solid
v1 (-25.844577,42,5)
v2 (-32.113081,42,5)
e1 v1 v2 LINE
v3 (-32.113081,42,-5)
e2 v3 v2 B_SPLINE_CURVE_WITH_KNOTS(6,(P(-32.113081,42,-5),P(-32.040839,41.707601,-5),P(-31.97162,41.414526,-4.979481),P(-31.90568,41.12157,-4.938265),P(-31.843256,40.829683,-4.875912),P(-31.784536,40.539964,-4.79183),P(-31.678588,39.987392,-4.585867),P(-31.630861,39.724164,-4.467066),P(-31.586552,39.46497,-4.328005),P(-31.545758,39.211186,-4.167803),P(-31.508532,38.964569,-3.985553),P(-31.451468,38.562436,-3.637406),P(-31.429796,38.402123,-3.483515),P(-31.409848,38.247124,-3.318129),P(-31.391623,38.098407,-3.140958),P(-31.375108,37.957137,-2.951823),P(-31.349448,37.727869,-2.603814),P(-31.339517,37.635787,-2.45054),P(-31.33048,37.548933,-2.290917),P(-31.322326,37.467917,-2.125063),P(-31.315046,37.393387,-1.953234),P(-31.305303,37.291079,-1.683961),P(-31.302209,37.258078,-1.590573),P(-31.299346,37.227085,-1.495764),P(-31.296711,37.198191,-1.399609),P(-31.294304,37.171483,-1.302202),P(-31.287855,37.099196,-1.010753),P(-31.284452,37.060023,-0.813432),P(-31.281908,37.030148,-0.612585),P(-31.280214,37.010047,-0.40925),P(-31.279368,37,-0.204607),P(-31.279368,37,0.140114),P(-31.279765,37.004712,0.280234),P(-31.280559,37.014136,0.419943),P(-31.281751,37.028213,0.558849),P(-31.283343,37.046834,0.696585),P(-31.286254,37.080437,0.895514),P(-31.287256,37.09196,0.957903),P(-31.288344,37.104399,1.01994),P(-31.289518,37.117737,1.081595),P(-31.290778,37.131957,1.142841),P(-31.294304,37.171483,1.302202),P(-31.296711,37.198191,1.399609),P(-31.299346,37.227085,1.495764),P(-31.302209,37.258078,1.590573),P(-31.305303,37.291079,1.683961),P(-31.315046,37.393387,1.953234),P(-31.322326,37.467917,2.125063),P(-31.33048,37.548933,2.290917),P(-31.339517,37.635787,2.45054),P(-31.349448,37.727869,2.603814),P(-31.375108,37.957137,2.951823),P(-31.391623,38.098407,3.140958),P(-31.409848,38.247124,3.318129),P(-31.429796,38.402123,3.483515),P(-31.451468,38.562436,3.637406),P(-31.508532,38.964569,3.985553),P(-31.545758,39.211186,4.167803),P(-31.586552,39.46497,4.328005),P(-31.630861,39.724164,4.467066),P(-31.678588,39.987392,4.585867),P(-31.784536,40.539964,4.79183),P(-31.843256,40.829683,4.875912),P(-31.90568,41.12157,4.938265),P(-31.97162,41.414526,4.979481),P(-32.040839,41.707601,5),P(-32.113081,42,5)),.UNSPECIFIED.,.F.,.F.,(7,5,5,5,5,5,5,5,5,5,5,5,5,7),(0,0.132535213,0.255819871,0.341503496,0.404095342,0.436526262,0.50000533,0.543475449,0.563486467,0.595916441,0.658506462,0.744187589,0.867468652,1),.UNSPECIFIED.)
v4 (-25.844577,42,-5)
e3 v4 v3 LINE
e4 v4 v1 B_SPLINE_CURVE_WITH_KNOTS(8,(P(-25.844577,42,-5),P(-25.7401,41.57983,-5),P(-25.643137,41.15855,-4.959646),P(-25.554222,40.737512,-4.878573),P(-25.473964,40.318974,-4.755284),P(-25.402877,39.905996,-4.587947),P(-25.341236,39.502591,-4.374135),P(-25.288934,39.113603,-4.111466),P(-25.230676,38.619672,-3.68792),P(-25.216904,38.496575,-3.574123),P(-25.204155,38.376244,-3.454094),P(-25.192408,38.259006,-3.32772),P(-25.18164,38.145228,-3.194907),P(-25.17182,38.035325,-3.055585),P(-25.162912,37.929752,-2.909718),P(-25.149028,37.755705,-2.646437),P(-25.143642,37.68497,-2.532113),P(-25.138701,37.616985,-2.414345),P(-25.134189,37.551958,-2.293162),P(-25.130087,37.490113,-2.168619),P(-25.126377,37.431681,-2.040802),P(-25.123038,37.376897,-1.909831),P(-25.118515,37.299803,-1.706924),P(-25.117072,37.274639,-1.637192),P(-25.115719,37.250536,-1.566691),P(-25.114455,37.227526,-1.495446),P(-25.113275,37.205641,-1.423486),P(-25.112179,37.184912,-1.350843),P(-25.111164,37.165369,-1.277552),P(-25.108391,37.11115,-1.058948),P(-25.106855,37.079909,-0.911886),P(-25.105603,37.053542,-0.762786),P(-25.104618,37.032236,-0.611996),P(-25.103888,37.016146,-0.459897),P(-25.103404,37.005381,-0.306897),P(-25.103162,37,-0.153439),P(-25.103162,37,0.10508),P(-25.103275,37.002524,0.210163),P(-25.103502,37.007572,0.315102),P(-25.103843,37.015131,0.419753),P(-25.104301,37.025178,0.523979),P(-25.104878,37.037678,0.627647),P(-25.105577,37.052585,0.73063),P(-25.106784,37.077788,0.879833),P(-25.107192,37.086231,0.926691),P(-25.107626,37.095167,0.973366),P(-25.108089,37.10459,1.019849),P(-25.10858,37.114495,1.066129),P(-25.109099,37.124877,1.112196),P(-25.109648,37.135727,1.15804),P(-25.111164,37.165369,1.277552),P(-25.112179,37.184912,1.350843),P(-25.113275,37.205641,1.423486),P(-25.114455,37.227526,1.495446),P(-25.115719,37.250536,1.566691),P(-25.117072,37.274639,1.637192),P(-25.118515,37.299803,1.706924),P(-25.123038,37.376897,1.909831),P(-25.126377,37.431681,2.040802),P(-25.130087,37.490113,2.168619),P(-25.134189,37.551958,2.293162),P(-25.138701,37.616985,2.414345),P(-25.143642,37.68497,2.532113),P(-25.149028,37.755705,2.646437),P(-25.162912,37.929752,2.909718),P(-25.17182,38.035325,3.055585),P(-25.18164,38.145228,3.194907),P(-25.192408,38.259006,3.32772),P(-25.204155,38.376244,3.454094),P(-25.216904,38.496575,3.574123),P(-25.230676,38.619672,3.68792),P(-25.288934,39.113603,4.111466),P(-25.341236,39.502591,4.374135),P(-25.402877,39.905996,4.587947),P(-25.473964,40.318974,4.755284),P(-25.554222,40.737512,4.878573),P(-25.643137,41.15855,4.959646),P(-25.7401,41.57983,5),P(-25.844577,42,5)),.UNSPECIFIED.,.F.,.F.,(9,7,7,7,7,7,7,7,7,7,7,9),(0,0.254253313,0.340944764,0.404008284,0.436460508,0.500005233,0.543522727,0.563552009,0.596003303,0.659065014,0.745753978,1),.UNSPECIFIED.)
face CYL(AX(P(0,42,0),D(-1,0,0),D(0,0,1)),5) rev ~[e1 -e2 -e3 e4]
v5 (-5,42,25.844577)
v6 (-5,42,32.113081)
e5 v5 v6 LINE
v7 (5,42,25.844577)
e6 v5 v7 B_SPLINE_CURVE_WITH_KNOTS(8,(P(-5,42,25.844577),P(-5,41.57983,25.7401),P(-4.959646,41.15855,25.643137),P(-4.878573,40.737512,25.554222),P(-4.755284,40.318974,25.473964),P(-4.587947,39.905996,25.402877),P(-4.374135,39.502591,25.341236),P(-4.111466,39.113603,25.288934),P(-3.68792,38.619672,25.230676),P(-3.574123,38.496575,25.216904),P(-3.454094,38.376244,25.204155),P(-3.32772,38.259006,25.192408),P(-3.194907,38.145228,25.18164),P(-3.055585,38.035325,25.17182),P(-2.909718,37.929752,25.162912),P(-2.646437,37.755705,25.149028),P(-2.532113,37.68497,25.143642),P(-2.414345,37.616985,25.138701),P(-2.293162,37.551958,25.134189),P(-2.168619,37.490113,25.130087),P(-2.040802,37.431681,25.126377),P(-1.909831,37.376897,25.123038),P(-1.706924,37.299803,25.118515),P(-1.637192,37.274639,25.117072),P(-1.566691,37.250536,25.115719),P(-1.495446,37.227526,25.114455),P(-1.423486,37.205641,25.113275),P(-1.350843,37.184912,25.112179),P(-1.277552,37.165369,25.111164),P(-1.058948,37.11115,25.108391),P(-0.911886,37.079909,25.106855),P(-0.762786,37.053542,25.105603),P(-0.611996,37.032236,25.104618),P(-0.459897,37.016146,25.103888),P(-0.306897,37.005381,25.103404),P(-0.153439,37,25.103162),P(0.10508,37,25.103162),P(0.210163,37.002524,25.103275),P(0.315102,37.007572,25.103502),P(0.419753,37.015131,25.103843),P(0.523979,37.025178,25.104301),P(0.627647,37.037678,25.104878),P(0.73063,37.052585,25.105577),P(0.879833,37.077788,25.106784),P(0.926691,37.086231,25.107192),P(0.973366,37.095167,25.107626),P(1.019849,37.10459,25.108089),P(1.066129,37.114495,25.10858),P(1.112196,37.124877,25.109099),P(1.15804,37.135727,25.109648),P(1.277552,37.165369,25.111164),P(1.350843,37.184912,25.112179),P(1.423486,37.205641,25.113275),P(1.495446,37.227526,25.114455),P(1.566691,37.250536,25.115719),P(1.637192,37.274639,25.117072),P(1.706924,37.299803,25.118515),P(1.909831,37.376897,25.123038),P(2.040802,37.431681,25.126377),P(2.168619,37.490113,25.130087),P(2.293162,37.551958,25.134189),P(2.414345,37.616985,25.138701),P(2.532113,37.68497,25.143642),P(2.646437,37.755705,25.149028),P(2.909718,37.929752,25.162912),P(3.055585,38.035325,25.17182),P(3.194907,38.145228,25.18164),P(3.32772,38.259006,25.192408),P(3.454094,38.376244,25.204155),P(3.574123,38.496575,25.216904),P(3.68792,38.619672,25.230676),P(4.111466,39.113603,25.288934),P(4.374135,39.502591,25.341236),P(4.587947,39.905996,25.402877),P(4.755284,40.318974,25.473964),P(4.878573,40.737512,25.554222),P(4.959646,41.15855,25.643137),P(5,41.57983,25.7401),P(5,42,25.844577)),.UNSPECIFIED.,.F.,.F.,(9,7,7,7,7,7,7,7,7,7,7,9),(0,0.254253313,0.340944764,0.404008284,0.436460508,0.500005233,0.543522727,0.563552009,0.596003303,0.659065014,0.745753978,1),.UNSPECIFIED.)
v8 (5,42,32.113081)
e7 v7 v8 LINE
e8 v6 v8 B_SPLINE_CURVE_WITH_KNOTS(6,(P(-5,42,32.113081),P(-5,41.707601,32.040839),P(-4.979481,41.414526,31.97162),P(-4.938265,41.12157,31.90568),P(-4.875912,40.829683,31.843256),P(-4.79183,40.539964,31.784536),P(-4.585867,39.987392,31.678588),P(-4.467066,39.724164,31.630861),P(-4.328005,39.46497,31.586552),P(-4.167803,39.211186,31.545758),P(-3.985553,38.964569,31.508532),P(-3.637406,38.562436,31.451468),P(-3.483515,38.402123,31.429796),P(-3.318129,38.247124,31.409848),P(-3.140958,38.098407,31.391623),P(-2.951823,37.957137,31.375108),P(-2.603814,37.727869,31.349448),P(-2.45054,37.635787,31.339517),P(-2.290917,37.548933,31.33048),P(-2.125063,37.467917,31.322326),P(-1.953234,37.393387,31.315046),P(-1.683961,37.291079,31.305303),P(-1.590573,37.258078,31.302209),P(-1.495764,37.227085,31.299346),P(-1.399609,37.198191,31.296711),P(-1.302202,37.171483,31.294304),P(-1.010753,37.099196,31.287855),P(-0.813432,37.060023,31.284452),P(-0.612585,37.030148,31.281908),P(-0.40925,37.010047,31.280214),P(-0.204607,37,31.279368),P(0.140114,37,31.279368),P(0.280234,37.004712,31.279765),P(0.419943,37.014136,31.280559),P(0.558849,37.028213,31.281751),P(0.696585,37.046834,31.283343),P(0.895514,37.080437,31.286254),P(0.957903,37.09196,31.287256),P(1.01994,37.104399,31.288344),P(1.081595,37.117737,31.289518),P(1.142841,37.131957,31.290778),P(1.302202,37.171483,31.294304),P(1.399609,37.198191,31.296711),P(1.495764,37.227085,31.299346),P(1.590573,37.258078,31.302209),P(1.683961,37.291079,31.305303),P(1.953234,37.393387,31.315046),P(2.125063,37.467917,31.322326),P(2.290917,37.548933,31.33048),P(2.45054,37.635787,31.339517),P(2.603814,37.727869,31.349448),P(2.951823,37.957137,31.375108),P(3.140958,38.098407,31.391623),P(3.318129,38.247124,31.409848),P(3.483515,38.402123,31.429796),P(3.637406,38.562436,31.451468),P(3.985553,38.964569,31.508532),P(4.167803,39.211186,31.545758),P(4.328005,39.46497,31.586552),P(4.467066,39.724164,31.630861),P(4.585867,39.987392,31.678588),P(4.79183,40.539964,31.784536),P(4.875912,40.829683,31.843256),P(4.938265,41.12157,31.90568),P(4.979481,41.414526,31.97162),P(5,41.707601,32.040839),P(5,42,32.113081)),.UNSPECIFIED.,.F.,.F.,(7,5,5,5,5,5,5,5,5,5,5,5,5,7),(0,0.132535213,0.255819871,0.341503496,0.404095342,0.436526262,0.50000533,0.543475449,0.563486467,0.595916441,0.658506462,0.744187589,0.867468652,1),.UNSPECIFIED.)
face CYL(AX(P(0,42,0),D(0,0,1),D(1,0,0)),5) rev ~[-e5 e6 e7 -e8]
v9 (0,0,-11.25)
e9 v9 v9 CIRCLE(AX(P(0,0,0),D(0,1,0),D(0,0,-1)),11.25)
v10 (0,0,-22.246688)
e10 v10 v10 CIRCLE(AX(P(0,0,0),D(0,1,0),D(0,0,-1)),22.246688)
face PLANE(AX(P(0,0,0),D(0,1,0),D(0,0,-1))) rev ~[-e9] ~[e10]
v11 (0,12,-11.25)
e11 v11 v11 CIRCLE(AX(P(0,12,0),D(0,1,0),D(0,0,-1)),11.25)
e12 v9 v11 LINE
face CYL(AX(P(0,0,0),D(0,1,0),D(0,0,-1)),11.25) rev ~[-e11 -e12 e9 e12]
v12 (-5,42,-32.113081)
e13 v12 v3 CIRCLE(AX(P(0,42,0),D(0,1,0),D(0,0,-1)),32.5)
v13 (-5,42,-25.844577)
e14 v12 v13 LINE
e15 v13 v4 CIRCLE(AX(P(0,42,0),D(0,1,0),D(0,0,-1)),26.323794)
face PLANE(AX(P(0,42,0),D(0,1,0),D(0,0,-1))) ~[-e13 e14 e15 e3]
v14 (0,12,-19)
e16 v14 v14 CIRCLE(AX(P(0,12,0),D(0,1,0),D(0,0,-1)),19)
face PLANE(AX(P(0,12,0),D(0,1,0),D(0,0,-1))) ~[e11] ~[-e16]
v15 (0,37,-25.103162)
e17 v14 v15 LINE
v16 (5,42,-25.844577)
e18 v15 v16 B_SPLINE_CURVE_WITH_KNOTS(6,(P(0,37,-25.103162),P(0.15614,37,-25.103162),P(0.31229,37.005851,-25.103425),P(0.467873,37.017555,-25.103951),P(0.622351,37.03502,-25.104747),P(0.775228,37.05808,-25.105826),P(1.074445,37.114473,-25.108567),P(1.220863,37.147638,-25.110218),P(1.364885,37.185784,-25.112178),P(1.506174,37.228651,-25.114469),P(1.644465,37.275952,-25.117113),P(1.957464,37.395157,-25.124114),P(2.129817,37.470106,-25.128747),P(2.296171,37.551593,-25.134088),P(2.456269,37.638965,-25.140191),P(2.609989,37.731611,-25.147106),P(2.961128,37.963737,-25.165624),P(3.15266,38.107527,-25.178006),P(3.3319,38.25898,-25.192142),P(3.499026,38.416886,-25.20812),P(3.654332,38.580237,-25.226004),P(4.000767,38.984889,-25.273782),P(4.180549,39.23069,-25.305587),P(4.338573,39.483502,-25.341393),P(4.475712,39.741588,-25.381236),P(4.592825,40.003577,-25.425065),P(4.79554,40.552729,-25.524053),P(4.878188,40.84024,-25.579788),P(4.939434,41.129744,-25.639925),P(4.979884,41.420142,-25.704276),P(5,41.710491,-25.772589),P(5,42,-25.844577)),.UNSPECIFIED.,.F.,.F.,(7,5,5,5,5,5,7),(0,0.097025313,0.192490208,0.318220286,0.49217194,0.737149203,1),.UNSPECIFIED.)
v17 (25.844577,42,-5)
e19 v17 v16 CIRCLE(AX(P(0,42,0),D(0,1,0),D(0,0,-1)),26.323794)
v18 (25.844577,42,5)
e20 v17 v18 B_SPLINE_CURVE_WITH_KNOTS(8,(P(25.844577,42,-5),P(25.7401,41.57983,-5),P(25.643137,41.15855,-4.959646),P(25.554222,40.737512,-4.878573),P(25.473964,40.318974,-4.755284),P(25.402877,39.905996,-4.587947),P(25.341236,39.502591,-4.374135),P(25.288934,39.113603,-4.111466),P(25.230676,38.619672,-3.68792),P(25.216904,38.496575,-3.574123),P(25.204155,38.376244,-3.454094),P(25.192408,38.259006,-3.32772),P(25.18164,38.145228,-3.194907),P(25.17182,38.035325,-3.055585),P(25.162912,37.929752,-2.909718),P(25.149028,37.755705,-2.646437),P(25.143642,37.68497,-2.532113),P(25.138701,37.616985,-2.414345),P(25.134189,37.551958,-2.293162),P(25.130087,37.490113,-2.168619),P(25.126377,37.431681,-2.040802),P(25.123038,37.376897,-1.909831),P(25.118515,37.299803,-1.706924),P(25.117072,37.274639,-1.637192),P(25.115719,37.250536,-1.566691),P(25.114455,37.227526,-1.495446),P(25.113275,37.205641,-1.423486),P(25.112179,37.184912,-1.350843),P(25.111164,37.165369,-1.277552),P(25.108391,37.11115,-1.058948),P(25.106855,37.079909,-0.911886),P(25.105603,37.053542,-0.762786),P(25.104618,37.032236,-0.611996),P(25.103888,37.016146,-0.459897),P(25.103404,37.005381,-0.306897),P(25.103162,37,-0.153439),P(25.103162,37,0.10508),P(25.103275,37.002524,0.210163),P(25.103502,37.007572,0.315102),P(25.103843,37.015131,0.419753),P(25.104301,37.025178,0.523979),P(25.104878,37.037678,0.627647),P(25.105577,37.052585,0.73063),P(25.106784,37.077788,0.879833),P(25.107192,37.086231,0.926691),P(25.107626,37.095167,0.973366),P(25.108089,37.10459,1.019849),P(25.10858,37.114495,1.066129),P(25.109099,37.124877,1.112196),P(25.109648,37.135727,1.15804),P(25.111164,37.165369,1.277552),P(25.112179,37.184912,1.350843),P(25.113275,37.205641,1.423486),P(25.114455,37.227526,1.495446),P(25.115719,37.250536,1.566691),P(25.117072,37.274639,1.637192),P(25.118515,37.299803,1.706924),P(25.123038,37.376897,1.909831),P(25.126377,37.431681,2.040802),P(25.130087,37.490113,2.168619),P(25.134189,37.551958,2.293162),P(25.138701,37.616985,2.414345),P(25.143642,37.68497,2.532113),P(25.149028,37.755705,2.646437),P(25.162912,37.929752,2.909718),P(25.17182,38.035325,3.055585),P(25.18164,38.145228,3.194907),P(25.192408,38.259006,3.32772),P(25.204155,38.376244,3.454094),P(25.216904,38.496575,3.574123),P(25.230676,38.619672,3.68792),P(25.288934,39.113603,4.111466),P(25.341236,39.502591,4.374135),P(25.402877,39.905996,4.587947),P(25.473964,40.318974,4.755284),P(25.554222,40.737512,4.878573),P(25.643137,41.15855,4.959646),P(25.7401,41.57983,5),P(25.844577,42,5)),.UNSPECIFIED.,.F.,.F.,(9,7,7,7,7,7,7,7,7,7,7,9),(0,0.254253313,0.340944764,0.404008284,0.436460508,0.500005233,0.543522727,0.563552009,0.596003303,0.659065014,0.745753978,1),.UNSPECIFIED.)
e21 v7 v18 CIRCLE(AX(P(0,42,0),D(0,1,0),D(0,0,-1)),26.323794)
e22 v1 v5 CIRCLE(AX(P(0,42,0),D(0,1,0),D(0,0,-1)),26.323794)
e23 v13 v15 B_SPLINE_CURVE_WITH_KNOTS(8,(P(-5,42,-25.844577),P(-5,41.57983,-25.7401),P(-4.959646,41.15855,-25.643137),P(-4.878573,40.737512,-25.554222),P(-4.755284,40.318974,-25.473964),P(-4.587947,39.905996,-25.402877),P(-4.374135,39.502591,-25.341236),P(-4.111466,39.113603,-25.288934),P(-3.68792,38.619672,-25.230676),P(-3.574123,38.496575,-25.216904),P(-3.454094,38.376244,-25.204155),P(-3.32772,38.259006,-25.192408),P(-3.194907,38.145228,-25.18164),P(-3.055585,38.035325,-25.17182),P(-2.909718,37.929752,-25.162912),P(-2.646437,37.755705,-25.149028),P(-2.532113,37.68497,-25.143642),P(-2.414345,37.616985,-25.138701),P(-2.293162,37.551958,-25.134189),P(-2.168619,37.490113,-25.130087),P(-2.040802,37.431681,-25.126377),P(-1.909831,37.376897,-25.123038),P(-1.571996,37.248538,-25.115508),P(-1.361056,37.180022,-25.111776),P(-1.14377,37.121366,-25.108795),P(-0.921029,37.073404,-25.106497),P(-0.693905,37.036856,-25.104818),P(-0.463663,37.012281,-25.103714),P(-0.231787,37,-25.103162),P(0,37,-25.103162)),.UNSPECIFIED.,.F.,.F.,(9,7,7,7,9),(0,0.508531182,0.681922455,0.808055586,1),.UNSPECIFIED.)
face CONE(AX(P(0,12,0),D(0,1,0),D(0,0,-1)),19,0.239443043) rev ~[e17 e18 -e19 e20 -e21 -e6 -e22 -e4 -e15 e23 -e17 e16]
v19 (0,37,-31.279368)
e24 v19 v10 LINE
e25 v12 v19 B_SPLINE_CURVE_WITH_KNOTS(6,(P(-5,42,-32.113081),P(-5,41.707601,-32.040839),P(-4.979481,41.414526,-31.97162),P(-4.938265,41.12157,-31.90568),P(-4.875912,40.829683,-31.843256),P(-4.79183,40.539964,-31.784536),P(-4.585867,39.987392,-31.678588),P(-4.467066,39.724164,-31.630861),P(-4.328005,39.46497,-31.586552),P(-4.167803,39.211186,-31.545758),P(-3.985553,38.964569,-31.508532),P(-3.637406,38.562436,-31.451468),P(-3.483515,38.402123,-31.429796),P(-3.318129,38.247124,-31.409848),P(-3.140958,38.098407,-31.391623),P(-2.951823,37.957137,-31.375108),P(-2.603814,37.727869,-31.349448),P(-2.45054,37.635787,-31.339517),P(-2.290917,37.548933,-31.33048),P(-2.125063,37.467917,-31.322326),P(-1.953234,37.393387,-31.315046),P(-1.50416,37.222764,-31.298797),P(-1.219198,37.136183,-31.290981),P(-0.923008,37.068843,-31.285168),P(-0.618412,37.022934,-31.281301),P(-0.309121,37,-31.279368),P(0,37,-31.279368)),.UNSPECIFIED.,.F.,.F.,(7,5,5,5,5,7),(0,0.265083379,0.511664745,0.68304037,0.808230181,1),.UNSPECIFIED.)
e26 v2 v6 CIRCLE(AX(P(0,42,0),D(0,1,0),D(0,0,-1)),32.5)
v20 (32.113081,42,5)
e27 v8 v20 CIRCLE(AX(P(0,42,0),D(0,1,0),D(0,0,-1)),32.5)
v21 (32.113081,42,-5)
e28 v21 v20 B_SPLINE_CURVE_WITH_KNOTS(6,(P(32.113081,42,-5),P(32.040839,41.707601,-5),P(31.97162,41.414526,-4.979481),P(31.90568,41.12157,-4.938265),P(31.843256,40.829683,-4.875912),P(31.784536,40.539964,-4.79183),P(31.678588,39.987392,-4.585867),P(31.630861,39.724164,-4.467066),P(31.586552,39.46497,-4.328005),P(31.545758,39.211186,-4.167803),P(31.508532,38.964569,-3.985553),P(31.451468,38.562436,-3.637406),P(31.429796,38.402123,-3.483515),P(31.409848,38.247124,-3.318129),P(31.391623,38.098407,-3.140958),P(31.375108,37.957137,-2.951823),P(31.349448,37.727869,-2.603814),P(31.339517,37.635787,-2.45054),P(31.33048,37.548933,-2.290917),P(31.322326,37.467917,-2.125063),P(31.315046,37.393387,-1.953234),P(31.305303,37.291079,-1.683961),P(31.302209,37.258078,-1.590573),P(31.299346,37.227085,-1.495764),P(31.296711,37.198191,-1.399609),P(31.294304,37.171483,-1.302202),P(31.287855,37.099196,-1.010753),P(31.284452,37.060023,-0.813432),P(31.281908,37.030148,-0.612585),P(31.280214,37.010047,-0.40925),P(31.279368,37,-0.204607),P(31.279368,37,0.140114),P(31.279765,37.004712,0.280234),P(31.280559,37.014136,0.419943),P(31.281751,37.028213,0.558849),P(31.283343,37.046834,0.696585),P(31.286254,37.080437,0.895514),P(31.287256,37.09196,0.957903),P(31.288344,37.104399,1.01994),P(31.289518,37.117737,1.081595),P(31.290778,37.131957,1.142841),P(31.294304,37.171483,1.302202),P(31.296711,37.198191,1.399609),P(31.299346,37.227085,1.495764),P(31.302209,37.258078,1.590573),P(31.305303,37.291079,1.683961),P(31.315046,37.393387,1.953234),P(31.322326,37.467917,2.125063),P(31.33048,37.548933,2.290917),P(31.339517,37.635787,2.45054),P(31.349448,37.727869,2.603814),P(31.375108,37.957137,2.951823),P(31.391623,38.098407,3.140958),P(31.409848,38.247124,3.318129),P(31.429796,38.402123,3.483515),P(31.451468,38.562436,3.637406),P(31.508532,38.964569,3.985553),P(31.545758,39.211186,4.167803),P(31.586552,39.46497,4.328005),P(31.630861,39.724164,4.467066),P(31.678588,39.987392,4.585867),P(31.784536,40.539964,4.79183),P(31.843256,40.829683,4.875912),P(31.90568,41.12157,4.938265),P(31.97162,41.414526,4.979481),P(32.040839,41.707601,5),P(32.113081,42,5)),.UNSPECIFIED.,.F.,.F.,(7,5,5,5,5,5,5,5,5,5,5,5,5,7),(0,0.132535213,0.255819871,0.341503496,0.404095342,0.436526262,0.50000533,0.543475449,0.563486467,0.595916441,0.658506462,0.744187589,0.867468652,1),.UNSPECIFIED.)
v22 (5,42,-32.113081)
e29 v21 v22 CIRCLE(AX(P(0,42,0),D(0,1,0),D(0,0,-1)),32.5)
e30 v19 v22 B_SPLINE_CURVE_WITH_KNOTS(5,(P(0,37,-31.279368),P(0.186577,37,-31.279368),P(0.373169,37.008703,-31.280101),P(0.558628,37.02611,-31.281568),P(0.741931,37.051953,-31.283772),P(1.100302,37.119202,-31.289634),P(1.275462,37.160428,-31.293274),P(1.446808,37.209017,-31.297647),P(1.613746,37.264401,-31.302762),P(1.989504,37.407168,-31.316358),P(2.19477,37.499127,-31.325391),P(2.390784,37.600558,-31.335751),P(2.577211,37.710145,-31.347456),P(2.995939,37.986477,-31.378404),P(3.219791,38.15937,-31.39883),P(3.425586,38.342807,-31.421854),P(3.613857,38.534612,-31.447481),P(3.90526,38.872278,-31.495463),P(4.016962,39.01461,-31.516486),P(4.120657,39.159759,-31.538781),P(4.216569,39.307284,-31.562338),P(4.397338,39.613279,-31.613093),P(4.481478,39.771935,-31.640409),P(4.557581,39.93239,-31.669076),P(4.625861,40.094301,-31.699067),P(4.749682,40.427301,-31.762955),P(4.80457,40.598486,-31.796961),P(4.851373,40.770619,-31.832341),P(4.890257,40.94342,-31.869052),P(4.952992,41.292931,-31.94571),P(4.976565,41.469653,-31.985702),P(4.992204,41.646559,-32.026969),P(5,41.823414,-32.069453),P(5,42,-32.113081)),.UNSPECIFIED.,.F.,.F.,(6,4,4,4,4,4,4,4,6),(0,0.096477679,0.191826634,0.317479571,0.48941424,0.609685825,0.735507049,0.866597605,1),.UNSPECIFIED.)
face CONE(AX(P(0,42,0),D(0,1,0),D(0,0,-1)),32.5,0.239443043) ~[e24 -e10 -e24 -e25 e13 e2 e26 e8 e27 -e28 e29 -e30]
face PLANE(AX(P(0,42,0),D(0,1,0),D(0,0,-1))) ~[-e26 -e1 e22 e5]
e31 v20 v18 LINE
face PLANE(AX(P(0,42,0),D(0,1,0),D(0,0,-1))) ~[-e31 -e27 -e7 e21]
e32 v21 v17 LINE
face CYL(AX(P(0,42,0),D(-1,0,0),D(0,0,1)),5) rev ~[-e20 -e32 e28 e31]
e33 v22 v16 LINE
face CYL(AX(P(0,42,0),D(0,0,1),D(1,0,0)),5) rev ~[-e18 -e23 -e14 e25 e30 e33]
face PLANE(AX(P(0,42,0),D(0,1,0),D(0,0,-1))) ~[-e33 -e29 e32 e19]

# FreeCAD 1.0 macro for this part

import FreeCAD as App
import Part
import Sketcher

doc = App.newDocument("Part")
body = doc.addObject("PartDesign::Body", "Body")

# Sketch on XY plane
sketch1 = body.newObject("Sketcher::SketchObject", "Sketch")
sketch1.AttachmentSupport = (doc.getObject("XY_Plane"), [""])
sketch1.MapMode = "FlatFace"
sketch1.addGeometry([
    Part.LineSegment(App.Vector(11.25, 12, 0), App.Vector(11.25, 0, 0)),  # 0
    Part.LineSegment(App.Vector(11.25, 0, 0), App.Vector(22.246688, 0, 0)),  # 1
    Part.LineSegment(App.Vector(22.246688, 0, 0), App.Vector(32.5, 42, 0)),  # 2
    Part.LineSegment(App.Vector(32.5, 42, 0), App.Vector(26.323794, 42, 0)),  # 3
    Part.LineSegment(App.Vector(26.323794, 42, 0), App.Vector(19, 12, 0)),  # 4
    Part.LineSegment(App.Vector(19, 12, 0), App.Vector(11.25, 12, 0)),  # 5
], False)
sketch1.addConstraint([
    Sketcher.Constraint("Coincident", 0, 2, 1, 1),
    Sketcher.Constraint("Coincident", 1, 2, 2, 1),
    Sketcher.Constraint("Coincident", 2, 2, 3, 1),
    Sketcher.Constraint("Coincident", 3, 2, 4, 1),
    Sketcher.Constraint("Coincident", 4, 2, 5, 1),
    Sketcher.Constraint("Coincident", 5, 2, 0, 1),
    Sketcher.Constraint("Vertical", 0),
    Sketcher.Constraint("Horizontal", 1),
    Sketcher.Constraint("Horizontal", 3),
    Sketcher.Constraint("Horizontal", 5),
    Sketcher.Constraint("PointOnObject", 0, 2, -1),
    Sketcher.Constraint("Parallel", 2, 4),
    Sketcher.Constraint("DistanceY", 0, 2, 0, 1, 12.0),
    Sketcher.Constraint("DistanceY", -1, 1, 2, 2, 42.0),
    Sketcher.Constraint("DistanceX", -1, 1, 4, 2, 19.0),
    Sketcher.Constraint("DistanceX", 5, 2, 5, 1, 7.75),
    Sketcher.Constraint("DistanceX", -1, 1, 2, 2, 32.5),
    Sketcher.Constraint("DistanceX", 1, 1, 1, 2, 10.996688),
])
revolution = body.newObject("PartDesign::Revolution", "Revolution")
revolution.Profile = sketch1
revolution.ReferenceAxis = (sketch1, ["V_Axis"])
revolution.Angle = 360

# Sketch on XY plane
sketch2 = body.newObject("Sketcher::SketchObject", "Sketch001")
sketch2.AttachmentSupport = (doc.getObject("XY_Plane"), [""])
sketch2.MapMode = "FlatFace"
sketch2.addGeometry(Part.Circle(App.Vector(0, 42, 0), App.Vector(0, 0, 1), 5), False)
sketch2.addConstraint([
    Sketcher.Constraint("PointOnObject", 0, 3, -2),
    Sketcher.Constraint("Diameter", 0, 10.0),
    Sketcher.Constraint("DistanceY", -1, 1, 0, 3, 42.0),
])
pocket1 = body.newObject("PartDesign::Pocket", "Pocket")
pocket1.Profile = sketch2
pocket1.Length = 126.52309
pocket1.Midplane = True
doc.recompute()

polarpattern = body.newObject("PartDesign::PolarPattern", "PolarPattern")
polarpattern.Originals = [pocket1]
polarpattern.Axis = (doc.getObject("Y_Axis"), [""])
polarpattern.Angle = 360
polarpattern.Occurrences = 4
body.Tip = polarpattern

doc.recompute()
